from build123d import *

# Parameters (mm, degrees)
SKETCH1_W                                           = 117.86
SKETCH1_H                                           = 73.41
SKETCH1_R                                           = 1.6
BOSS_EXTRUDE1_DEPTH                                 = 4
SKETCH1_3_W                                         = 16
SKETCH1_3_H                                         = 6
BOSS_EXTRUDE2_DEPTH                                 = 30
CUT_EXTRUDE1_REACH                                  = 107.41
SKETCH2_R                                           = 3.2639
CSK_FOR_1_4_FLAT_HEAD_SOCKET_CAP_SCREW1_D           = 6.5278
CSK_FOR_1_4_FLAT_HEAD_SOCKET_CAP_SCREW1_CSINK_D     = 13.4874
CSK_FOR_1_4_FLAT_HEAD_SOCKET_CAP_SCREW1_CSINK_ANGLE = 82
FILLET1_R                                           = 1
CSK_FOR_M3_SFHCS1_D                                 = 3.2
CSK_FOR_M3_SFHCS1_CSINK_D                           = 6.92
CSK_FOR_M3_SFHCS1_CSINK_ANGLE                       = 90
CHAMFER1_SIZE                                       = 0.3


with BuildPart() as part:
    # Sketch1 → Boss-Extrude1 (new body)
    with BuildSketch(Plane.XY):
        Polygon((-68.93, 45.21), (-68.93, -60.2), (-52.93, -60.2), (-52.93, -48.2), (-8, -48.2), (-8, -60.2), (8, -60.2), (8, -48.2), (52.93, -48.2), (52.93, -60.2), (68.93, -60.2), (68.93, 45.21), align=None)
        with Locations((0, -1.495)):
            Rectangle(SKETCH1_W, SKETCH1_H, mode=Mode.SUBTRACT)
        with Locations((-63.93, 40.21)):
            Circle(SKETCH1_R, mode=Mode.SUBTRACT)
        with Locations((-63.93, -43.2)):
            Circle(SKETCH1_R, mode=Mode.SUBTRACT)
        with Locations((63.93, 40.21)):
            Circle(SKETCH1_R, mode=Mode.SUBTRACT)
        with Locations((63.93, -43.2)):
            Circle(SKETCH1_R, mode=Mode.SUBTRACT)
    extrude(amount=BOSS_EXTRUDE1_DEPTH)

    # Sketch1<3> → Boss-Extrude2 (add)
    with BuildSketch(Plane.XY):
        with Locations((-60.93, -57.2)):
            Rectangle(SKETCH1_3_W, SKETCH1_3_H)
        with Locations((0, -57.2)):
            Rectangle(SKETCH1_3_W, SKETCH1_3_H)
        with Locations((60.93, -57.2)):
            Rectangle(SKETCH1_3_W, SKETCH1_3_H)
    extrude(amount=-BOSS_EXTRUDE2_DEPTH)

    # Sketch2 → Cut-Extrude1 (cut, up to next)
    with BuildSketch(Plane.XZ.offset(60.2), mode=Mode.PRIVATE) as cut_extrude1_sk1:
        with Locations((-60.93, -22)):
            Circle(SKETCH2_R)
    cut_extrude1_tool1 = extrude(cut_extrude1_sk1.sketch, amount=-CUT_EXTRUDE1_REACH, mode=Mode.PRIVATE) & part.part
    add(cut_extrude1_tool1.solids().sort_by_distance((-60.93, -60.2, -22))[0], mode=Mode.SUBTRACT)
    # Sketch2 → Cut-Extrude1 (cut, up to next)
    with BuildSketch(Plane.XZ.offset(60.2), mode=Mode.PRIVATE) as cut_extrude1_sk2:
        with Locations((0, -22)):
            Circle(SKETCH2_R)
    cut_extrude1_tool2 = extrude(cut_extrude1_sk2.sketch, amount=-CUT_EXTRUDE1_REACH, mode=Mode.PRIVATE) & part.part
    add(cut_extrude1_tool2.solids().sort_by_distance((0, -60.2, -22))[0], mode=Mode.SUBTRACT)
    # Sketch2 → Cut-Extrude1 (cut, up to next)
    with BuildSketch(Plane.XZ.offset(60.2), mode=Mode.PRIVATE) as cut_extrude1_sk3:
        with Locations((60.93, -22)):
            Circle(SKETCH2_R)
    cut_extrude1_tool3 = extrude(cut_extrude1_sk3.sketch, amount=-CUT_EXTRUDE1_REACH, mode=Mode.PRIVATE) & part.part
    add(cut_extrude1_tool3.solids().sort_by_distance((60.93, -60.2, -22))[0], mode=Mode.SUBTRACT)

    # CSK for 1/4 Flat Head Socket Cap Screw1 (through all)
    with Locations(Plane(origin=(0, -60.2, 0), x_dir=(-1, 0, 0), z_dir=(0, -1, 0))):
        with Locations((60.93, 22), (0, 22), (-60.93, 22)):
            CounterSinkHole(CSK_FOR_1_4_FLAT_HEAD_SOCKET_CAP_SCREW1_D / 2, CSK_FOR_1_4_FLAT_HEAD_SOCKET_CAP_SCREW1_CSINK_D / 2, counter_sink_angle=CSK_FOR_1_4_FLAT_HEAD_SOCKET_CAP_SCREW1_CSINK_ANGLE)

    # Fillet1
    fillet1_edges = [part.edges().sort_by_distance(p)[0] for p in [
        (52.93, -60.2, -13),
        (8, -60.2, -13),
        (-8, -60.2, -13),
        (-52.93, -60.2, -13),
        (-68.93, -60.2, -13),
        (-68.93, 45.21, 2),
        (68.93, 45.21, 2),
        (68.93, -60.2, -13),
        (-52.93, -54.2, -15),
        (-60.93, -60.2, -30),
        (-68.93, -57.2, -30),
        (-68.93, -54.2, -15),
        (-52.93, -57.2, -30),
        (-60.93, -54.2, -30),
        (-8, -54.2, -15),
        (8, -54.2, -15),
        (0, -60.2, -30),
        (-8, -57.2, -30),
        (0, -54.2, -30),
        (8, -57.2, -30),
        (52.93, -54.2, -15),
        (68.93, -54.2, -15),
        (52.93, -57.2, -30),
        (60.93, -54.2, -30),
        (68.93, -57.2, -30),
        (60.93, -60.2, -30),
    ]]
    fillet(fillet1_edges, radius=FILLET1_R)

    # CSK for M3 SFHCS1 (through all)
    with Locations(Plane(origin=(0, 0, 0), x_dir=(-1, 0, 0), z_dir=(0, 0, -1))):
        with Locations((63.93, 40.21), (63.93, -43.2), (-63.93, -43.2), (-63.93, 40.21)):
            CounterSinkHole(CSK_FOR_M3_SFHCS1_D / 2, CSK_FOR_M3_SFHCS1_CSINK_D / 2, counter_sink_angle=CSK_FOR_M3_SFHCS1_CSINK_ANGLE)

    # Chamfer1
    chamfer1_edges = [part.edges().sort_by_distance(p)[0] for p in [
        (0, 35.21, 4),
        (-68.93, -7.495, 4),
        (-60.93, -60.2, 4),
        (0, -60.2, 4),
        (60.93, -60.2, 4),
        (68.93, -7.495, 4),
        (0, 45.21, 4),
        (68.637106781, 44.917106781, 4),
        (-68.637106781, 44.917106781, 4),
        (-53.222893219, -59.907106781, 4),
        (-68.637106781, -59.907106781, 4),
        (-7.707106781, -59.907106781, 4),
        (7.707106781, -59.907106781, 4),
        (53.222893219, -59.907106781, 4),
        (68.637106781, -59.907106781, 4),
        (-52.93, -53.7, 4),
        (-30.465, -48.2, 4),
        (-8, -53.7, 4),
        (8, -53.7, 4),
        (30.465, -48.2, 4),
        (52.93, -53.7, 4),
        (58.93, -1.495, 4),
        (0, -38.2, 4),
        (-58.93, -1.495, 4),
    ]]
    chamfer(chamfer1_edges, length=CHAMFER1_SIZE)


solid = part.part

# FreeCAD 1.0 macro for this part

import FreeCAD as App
import Part
import Sketcher
Q = App.Units.Quantity


def edges_at(feature, points):
    """Names of the edges that pass closest to the given points."""
    edges = feature.Shape.Edges
    near = lambda p: min(range(len(edges)), key=lambda i: edges[i].distToShape(Part.Vertex(*p))[0])
    return sorted({f"Edge{near(p) + 1}" for p in points})


def add_polygon(sketch, points):
    """Adds a closed chain of lines whose ends are joined by coincident constraints."""
    first, n = sketch.GeometryCount, len(points)
    for a, b in zip(points, points[1:] + points[:1]):
        sketch.addGeometry(Part.LineSegment(App.Vector(*a, 0), App.Vector(*b, 0)), False)
    for i in range(n):
        sketch.addConstraint(Sketcher.Constraint("Coincident", first + i, 2, first + (i + 1) % n, 1))

doc = App.newDocument("Part")
body = doc.addObject("PartDesign::Body", "Body")

# Sketch on XY plane
sketch1 = body.newObject("Sketcher::SketchObject", "Sketch")
sketch1.AttachmentSupport = (doc.getObject("XY_Plane"), [""])
sketch1.MapMode = "FlatFace"
add_polygon(sketch1, [(-68.9, 45.2), (-68.9, -60.2), (-52.9, -60.2), (-52.9, -48.2), (-8, -48.2), (-8, -60.2), (8, -60.2), (8, -48.2), (52.9, -48.2), (52.9, -60.2), (68.9, -60.2), (68.9, 45.2)])  # lines 0-11
sketch1.addGeometry(Part.Circle(App.Vector(-63.9, -43.2, 0), App.Vector(0, 0, 1), 1.6), False)  # 12
sketch1.addGeometry(Part.Circle(App.Vector(63.9, -43.2, 0), App.Vector(0, 0, 1), 1.6), False)  # 13
sketch1.addGeometry(Part.Circle(App.Vector(-63.9, 40.2, 0), App.Vector(0, 0, 1), 1.6), False)  # 14
add_polygon(sketch1, [(58.9, -38.2), (-58.9, -38.2), (-58.9, 35.2), (58.9, 35.2)])  # lines 15-18
sketch1.addGeometry(Part.Circle(App.Vector(63.9, 40.2, 0), App.Vector(0, 0, 1), 1.6), False)  # 19
sketch1.addConstraint([
    Sketcher.Constraint("Vertical", 0),
    Sketcher.Constraint("Horizontal", 1),
    Sketcher.Constraint("Vertical", 2),
    Sketcher.Constraint("Horizontal", 3),
    Sketcher.Constraint("Vertical", 4),
    Sketcher.Constraint("Horizontal", 5),
    Sketcher.Constraint("Vertical", 6),
    Sketcher.Constraint("Horizontal", 7),
    Sketcher.Constraint("Vertical", 8),
    Sketcher.Constraint("Horizontal", 9),
    Sketcher.Constraint("Vertical", 10),
    Sketcher.Constraint("Horizontal", 11),
    Sketcher.Constraint("Horizontal", 15),
    Sketcher.Constraint("Vertical", 16),
    Sketcher.Constraint("Horizontal", 17),
    Sketcher.Constraint("Vertical", 18),
    Sketcher.Constraint("Equal", 12, 13),
    Sketcher.Constraint("Equal", 13, 14),
    Sketcher.Constraint("Equal", 14, 19),
    Sketcher.Constraint("Symmetric", 12, 3, 13, 3, -2),
    Sketcher.Constraint("Symmetric", 14, 3, 19, 3, -2),
    Sketcher.Constraint("Symmetric", 3, 2, 6, 2, -2),
    Sketcher.Constraint("Symmetric", 1, 2, 8, 2, -2),
    Sketcher.Constraint("Horizontal", 1, 2, 4, 2),
    Sketcher.Constraint("Vertical", 12, 3, 14, 3),
    Sketcher.Constraint("Equal", 1, 5),
    Sketcher.Constraint("Equal", 5, 9),
    Sketcher.Constraint("Diameter", 12, Q("3.2 mm")),
    Sketcher.Constraint("DistanceX", 1, 1, 1, 2, Q("16 mm")),
    Sketcher.Constraint("DistanceY", 2, 1, 2, 2, Q("12 mm")),
    Sketcher.Constraint("DistanceX", 0, 2, 12, 3, Q("5 mm")),
    Sketcher.Constraint("DistanceY", 0, 2, 12, 3, Q("17 mm")),
    Sketcher.Constraint("DistanceY", 19, 3, 10, 2, Q("5 mm")),
    Sketcher.Constraint("DistanceX", 12, 3, 15, 2, Q("5 mm")),
    Sketcher.Constraint("DistanceY", 12, 3, 15, 2, Q("5 mm")),
    Sketcher.Constraint("DistanceY", 16, 2, 14, 3, Q("5 mm")),
    Sketcher.Constraint("DistanceX", 17, 2, 19, 3, Q("5 mm")),
    Sketcher.Constraint("DistanceX", 3, 1, 3, 2, Q("44.93 mm")),
    Sketcher.Constraint("DistanceY", 0, 2, 0, 1, Q("105.41 mm")),
    Sketcher.Constraint("DistanceY", 12, 3, -1, 1, Q("43.2 mm")),
])
pad1 = body.newObject("PartDesign::Pad", "Pad")
pad1.Profile = sketch1
pad1.Length = 4

# Sketch on XY plane
sketch2 = body.newObject("Sketcher::SketchObject", "Sketch001")
sketch2.AttachmentSupport = (doc.getObject("XY_Plane"), [""])
sketch2.MapMode = "FlatFace"
add_polygon(sketch2, [(-69, -54), (-69, -60), (-53, -60), (-53, -54)])  # lines 0-3
add_polygon(sketch2, [(-8, -54), (-8, -60), (8, -60), (8, -54)])  # lines 4-7
add_polygon(sketch2, [(53, -54), (53, -60), (69, -60), (69, -54)])  # lines 8-11
sketch2.addConstraint([
    Sketcher.Constraint("Vertical", 0),
    Sketcher.Constraint("Horizontal", 1),
    Sketcher.Constraint("Vertical", 2),
    Sketcher.Constraint("Horizontal", 3),
    Sketcher.Constraint("Vertical", 4),
    Sketcher.Constraint("Horizontal", 5),
    Sketcher.Constraint("Vertical", 6),
    Sketcher.Constraint("Horizontal", 7),
    Sketcher.Constraint("Vertical", 8),
    Sketcher.Constraint("Horizontal", 9),
    Sketcher.Constraint("Vertical", 10),
    Sketcher.Constraint("Horizontal", 11),
    Sketcher.Constraint("Symmetric", 1, 2, 8, 2, -2),
    Sketcher.Constraint("Symmetric", 3, 2, 10, 2, -2),
    Sketcher.Constraint("Horizontal", 1, 2, 4, 2),
    Sketcher.Constraint("Horizontal", 3, 2, 6, 2),
    Sketcher.Constraint("Equal", 3, 5),
    Sketcher.Constraint("DistanceX", 1, 1, 1, 2, Q("16 mm")),
    Sketcher.Constraint("DistanceY", 0, 2, 0, 1, Q("6 mm")),
    Sketcher.Constraint("DistanceX", 4, 2, -1, 1, Q("8 mm")),
    Sketcher.Constraint("DistanceY", 0, 2, -1, 1, Q("60.2 mm")),
    Sketcher.Constraint("DistanceX", 0, 2, -1, 1, Q("68.93 mm")),
])
pad2 = body.newObject("PartDesign::Pad", "Pad001")
pad2.Profile = sketch2
pad2.Length = 30
pad2.Reversed = True

# Sketch on XZ plane
sketch3 = body.newObject("Sketcher::SketchObject", "Sketch002")
sketch3.AttachmentSupport = (doc.getObject("XZ_Plane"), [""])
sketch3.MapMode = "FlatFace"
sketch3.AttachmentOffset = App.Placement(App.Vector(0, 0, 60.2), App.Rotation())
sketch3.addGeometry(Part.Circle(App.Vector(-60.9, -22, 0), App.Vector(0, 0, 1), 3.3), False)
sketch3.addConstraint([
    Sketcher.Constraint("DistanceY", 0, 3, -1, 1, Q("22 mm")),
    Sketcher.Constraint("Diameter", 0, Q("6.5278 mm")),
    Sketcher.Constraint("DistanceX", 0, 3, -1, 1, Q("60.93 mm")),
])
pocket1 = body.newObject("PartDesign::Pocket", "Pocket")
pocket1.Profile = sketch3
pocket1.Type = "UpToFirst"

# Sketch on XZ plane
sketch4 = body.newObject("Sketcher::SketchObject", "Sketch003")
sketch4.AttachmentSupport = (doc.getObject("XZ_Plane"), [""])
sketch4.MapMode = "FlatFace"
sketch4.AttachmentOffset = App.Placement(App.Vector(0, 0, 60.2), App.Rotation())
sketch4.addGeometry(Part.Circle(App.Vector(0, -22, 0), App.Vector(0, 0, 1), 3.3), False)
sketch4.addConstraint([
    Sketcher.Constraint("PointOnObject", 0, 3, -2),
    Sketcher.Constraint("DistanceY", 0, 3, -1, 1, Q("22 mm")),
    Sketcher.Constraint("Diameter", 0, Q("6.5278 mm")),
])
pocket2 = body.newObject("PartDesign::Pocket", "Pocket001")
pocket2.Profile = sketch4
pocket2.Type = "UpToFirst"

# Sketch on XZ plane
sketch5 = body.newObject("Sketcher::SketchObject", "Sketch004")
sketch5.AttachmentSupport = (doc.getObject("XZ_Plane"), [""])
sketch5.MapMode = "FlatFace"
sketch5.AttachmentOffset = App.Placement(App.Vector(0, 0, 60.2), App.Rotation())
sketch5.addGeometry(Part.Circle(App.Vector(60.9, -22, 0), App.Vector(0, 0, 1), 3.3), False)
sketch5.addConstraint([
    Sketcher.Constraint("DistanceY", 0, 3, -1, 1, Q("22 mm")),
    Sketcher.Constraint("Diameter", 0, Q("6.5278 mm")),
    Sketcher.Constraint("DistanceX", -1, 1, 0, 3, Q("60.93 mm")),
])
pocket3 = body.newObject("PartDesign::Pocket", "Pocket002")
pocket3.Profile = sketch5
pocket3.Type = "UpToFirst"

# Sketch on XZ plane
sketch6 = body.newObject("Sketcher::SketchObject", "Sketch005")
sketch6.AttachmentSupport = (doc.getObject("XZ_Plane"), [""])
sketch6.MapMode = "FlatFace"
sketch6.AttachmentOffset = App.Placement(App.Vector(0, 0, 60.2), App.Rotation())
sketch6.addGeometry([
    Part.Circle(App.Vector(-60.9, -22, 0), App.Vector(0, 0, 1), 3.3),
    Part.Circle(App.Vector(0, -22, 0), App.Vector(0, 0, 1), 3.3),
    Part.Circle(App.Vector(60.9, -22, 0), App.Vector(0, 0, 1), 3.3),
], False)
sketch6.addConstraint([
    Sketcher.Constraint("Equal", 0, 1),
    Sketcher.Constraint("Equal", 1, 2),
    Sketcher.Constraint("Symmetric", 0, 3, 2, 3, -2),
    Sketcher.Constraint("PointOnObject", 1, 3, -2),
    Sketcher.Constraint("Horizontal", 0, 3, 1, 3),
    Sketcher.Constraint("DistanceY", 0, 3, -1, 1, Q("22 mm")),
    Sketcher.Constraint("Diameter", 0, Q("6.5278 mm")),
    Sketcher.Constraint("DistanceX", 0, 3, -1, 1, Q("60.93 mm")),
])
doc.recompute()
hole = body.newObject("PartDesign::Hole", "Hole")
hole.Profile = sketch6
hole.ThreadType = "None"
hole.Diameter = 6.5278
hole.DepthType = "ThroughAll"
hole.HoleCutType = "Countersink"
hole.HoleCutDiameter = 13.4874
hole.HoleCutCountersinkAngle = 82
doc.recompute()

fillet = body.newObject("PartDesign::Fillet", "Fillet")
fillet.Base = (hole, edges_at(hole, [
    (52.93, -60.2, -13),
    (8, -60.2, -13),
    (-8, -60.2, -13),
    (-52.93, -60.2, -13),
    (-68.93, -60.2, -13),
    (-68.93, 45.21, 2),
    (68.93, 45.21, 2),
    (68.93, -60.2, -13),
    (-52.93, -54.2, -15),
    (-60.93, -60.2, -30),
    (-68.93, -57.2, -30),
    (-68.93, -54.2, -15),
    (-52.93, -57.2, -30),
    (-60.93, -54.2, -30),
    (-8, -54.2, -15),
    (8, -54.2, -15),
    (0, -60.2, -30),
    (-8, -57.2, -30),
    (0, -54.2, -30),
    (8, -57.2, -30),
    (52.93, -54.2, -15),
    (68.93, -54.2, -15),
    (52.93, -57.2, -30),
    (60.93, -54.2, -30),
    (68.93, -57.2, -30),
    (60.93, -60.2, -30),
]))
fillet.Radius = 1

# Sketch on XY plane
sketch7 = body.newObject("Sketcher::SketchObject", "Sketch006")
sketch7.AttachmentSupport = (doc.getObject("XY_Plane"), [""])
sketch7.MapMode = "FlatFace"
sketch7.addGeometry([
    Part.Circle(App.Vector(-63.9, 40.2, 0), App.Vector(0, 0, 1), 1.6),
    Part.Circle(App.Vector(-63.9, -43.2, 0), App.Vector(0, 0, 1), 1.6),
    Part.Circle(App.Vector(63.9, -43.2, 0), App.Vector(0, 0, 1), 1.6),
    Part.Circle(App.Vector(63.9, 40.2, 0), App.Vector(0, 0, 1), 1.6),
], False)
sketch7.addConstraint([
    Sketcher.Constraint("Equal", 0, 1),
    Sketcher.Constraint("Equal", 1, 2),
    Sketcher.Constraint("Equal", 2, 3),
    Sketcher.Constraint("Symmetric", 1, 3, 2, 3, -2),
    Sketcher.Constraint("Symmetric", 0, 3, 3, 3, -2),
    Sketcher.Constraint("Vertical", 0, 3, 1, 3),
    Sketcher.Constraint("Diameter", 0, Q("3.2 mm")),
    Sketcher.Constraint("DistanceY", 1, 3, -1, 1, Q("43.2 mm")),
    Sketcher.Constraint("DistanceX", 0, 3, -1, 1, Q("63.93 mm")),
    Sketcher.Constraint("DistanceY", -1, 1, 0, 3, Q("40.21 mm")),
])
doc.recompute()
hole2 = body.newObject("PartDesign::Hole", "Hole001")
hole2.Profile = sketch7
hole2.ThreadType = "None"
hole2.Diameter = 3.2
hole2.DepthType = "ThroughAll"
hole2.HoleCutType = "Countersink"
hole2.HoleCutDiameter = 6.92
hole2.HoleCutCountersinkAngle = 90
hole2.Reversed = True
doc.recompute()

chamfer = body.newObject("PartDesign::Chamfer", "Chamfer")
chamfer.Base = (hole2, edges_at(hole2, [
    (0, 35.21, 4),
    (-68.93, -7.495, 4),
    (-60.93, -60.2, 4),
    (0, -60.2, 4),
    (60.93, -60.2, 4),
    (68.93, -7.495, 4),
    (0, 45.21, 4),
    (68.637, 44.917, 4),
    (-68.637, 44.917, 4),
    (-53.223, -59.907, 4),
    (-68.637, -59.907, 4),
    (-7.707, -59.907, 4),
    (7.707, -59.907, 4),
    (53.223, -59.907, 4),
    (68.637, -59.907, 4),
    (-52.93, -53.7, 4),
    (-30.465, -48.2, 4),
    (-8, -53.7, 4),
    (8, -53.7, 4),
    (30.465, -48.2, 4),
    (52.93, -53.7, 4),
    (58.93, -1.495, 4),
    (0, -38.2, 4),
    (-58.93, -1.495, 4),
]))
chamfer.Size = 0.3

doc.recompute()
